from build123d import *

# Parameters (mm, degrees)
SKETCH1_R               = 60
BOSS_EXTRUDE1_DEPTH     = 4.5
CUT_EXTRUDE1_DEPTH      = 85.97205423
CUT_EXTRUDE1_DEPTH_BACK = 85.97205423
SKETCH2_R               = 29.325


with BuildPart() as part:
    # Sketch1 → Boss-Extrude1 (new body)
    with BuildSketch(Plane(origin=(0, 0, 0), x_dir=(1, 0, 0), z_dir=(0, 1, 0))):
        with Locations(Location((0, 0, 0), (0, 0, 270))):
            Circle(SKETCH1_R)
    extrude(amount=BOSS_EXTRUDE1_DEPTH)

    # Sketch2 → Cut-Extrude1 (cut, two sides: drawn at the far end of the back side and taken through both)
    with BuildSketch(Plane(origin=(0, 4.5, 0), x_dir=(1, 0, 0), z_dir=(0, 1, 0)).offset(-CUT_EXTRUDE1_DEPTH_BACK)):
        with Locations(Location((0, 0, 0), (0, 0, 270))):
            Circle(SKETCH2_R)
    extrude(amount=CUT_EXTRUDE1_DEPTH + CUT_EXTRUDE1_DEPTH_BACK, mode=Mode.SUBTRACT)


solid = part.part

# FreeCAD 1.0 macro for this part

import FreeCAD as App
import Part
import Sketcher
Q = App.Units.Quantity

doc = App.newDocument("Part")
body = doc.addObject("PartDesign::Body", "Body")

# Sketch on XZ plane
sketch1 = doc.addObject("Sketcher::SketchObject", "Sketch")
body.addObject(sketch1)
sketch1.AttachmentSupport = (doc.XZ_Plane, [""])
sketch1.MapMode = "FlatFace"
sketch1.addGeometry(Part.Circle(App.Vector(0, 0, 0), App.Vector(0, 0, 1), 60), False)
sketch1.addConstraint([
    Sketcher.Constraint("Coincident", 0, 3, -1, 1),
    Sketcher.Constraint("Diameter", 0, Q("120 mm")),
])
pad1 = doc.addObject("PartDesign::Pad", "Pad")
body.addObject(pad1)
pad1.Profile = sketch1
pad1.Length = 4.5
pad1.Reversed = True

# Sketch on XZ plane
sketch2 = doc.addObject("Sketcher::SketchObject", "Sketch001")
body.addObject(sketch2)
sketch2.AttachmentSupport = (doc.XZ_Plane, [""])
sketch2.MapMode = "FlatFace"
sketch2.AttachmentOffset = App.Placement(App.Vector(0, 0, -4.5), App.Rotation())
sketch2.addGeometry(Part.Circle(App.Vector(0, 0, 0), App.Vector(0, 0, 1), 29), False)
sketch2.addConstraint([
    Sketcher.Constraint("Coincident", 0, 3, -1, 1),
    Sketcher.Constraint("Diameter", 0, Q("58.65 mm")),
])
pocket1 = doc.addObject("PartDesign::Pocket", "Pocket")
body.addObject(pocket1)
pocket1.Profile = sketch2
pocket1.Type = "ThroughAll"
pocket1.Midplane = True

doc.recompute()
